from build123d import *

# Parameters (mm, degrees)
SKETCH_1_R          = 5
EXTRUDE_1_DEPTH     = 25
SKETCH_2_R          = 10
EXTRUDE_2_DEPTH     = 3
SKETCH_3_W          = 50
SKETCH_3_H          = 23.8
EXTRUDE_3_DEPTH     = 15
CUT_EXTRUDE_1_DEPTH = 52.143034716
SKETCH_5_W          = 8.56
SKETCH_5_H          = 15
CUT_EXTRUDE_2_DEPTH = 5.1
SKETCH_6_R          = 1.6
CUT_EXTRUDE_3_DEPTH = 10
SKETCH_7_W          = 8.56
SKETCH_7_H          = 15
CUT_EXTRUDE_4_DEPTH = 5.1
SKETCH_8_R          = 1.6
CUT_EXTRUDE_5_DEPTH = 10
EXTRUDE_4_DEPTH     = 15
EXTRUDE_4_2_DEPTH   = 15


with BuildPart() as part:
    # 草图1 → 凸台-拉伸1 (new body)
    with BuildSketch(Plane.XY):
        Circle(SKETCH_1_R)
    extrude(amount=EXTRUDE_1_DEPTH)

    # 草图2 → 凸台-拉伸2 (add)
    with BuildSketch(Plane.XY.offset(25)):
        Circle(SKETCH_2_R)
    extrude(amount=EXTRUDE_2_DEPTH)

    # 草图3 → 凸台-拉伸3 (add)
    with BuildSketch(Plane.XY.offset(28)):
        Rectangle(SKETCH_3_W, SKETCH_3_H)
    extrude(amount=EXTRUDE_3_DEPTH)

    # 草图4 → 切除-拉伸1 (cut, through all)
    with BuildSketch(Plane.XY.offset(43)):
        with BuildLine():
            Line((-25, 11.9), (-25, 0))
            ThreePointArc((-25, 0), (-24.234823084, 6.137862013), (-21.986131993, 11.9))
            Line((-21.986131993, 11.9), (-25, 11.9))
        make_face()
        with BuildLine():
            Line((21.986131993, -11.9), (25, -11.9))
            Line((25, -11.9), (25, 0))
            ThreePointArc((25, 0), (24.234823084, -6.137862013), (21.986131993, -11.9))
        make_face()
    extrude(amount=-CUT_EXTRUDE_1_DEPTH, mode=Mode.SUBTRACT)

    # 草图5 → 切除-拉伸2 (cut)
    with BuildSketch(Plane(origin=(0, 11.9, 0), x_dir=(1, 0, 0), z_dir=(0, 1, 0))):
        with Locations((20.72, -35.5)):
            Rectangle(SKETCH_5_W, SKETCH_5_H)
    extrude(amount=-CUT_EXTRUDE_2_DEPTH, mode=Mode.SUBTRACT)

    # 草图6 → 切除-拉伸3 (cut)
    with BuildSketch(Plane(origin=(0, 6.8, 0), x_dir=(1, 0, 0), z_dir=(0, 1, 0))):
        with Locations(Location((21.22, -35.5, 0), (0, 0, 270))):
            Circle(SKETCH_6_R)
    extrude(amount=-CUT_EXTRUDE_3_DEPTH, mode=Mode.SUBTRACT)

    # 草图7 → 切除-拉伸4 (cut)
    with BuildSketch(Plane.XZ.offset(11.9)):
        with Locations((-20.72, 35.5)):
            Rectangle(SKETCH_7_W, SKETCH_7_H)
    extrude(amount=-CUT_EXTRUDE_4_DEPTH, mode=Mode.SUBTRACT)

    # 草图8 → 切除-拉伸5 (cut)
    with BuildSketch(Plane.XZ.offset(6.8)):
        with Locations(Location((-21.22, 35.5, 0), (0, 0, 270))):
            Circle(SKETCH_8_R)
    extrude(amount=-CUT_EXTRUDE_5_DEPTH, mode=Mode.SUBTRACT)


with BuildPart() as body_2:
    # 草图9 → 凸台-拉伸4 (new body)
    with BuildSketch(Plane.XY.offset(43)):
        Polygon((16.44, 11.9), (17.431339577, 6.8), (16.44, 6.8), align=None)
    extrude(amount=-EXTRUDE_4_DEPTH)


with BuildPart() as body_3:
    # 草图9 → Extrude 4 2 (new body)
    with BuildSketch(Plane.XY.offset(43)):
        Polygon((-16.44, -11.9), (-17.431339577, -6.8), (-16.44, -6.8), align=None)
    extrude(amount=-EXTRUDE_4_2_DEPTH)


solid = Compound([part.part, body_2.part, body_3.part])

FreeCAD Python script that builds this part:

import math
import FreeCAD as App
import Part
import Sketcher
from FreeCAD import Vector
Q = App.Units.Quantity


def add_polygon(sketch, points):
    """Adds a closed chain of lines whose ends are joined by coincident constraints."""
    first, n = sketch.GeometryCount, len(points)
    for a, b in zip(points, points[1:] + points[:1]):
        sketch.addGeometry(Part.LineSegment(App.Vector(*a, 0), App.Vector(*b, 0)), False)
    for i in range(n):
        sketch.addConstraint(Sketcher.Constraint("Coincident", first + i, 2, first + (i + 1) % n, 1))

doc = App.newDocument("Part")
body = doc.addObject("PartDesign::Body", "Body")

# Sketch on XY plane
sketch1 = body.newObject("Sketcher::SketchObject", "Sketch")
sketch1.AttachmentSupport = (doc.getObject("XY_Plane"), [""])
sketch1.MapMode = "FlatFace"
sketch1.addGeometry(Part.Circle(Vector(0, 0, 0), Vector(0, 0, 1), 5), False)
sketch1.addConstraint([
    Sketcher.Constraint("Coincident", 0, 3, -1, 1),
    Sketcher.Constraint("Diameter", 0, Q("10 mm")),
])
pad1 = body.newObject("PartDesign::Pad", "Pad")
pad1.Profile = sketch1
pad1.Length = 25

# Sketch on XY plane
sketch2 = body.newObject("Sketcher::SketchObject", "Sketch001")
sketch2.AttachmentSupport = (doc.getObject("XY_Plane"), [""])
sketch2.MapMode = "FlatFace"
sketch2.AttachmentOffset = App.Placement(Vector(0, 0, 25), App.Rotation())
sketch2.addGeometry(Part.Circle(Vector(0, 0, 0), Vector(0, 0, 1), 10), False)
sketch2.addConstraint([
    Sketcher.Constraint("Coincident", 0, 3, -1, 1),
    Sketcher.Constraint("Diameter", 0, Q("20 mm")),
])
pad2 = body.newObject("PartDesign::Pad", "Pad001")
pad2.Profile = sketch2
pad2.Length = 3

# Sketch on XY plane
sketch3 = body.newObject("Sketcher::SketchObject", "Sketch002")
sketch3.AttachmentSupport = (doc.getObject("XY_Plane"), [""])
sketch3.MapMode = "FlatFace"
sketch3.AttachmentOffset = App.Placement(Vector(0, 0, 28), App.Rotation())
add_polygon(sketch3, [(-25, 12), (-25, -12), (25, -12), (25, 12)])  # lines 0-3
sketch3.addConstraint([
    Sketcher.Constraint("Vertical", 0),
    Sketcher.Constraint("Horizontal", 1),
    Sketcher.Constraint("Vertical", 2),
    Sketcher.Constraint("Horizontal", 3),
    Sketcher.Constraint("Symmetric", 0, 2, 2, 2, -1, 1),
    Sketcher.Constraint("DistanceX", 1, 1, 1, 2, Q("50 mm")),
    Sketcher.Constraint("DistanceY", 0, 2, 0, 1, Q("23.8 mm")),
])
pad3 = body.newObject("PartDesign::Pad", "Pad002")
pad3.Profile = sketch3
pad3.Length = 15

# Sketch on XY plane
sketch4 = body.newObject("Sketcher::SketchObject", "Sketch003")
sketch4.AttachmentSupport = (doc.getObject("XY_Plane"), [""])
sketch4.MapMode = "FlatFace"
sketch4.AttachmentOffset = App.Placement(Vector(0, 0, 43), App.Rotation())
sketch4.addGeometry([
    Part.LineSegment(Vector(-25, 11.9, 0), Vector(-25, 0, 0)),  # 0
    Part.ArcOfCircle(Part.Circle(Vector(0, 0, 0), Vector(0, 0, 1), 25), math.radians(152), math.radians(180)),  # 1
    Part.LineSegment(Vector(-22, 11.9, 0), Vector(-25, 11.9, 0)),  # 2
    Part.LineSegment(Vector(22, -11.9, 0), Vector(25, -11.9, 0)),  # 3
    Part.LineSegment(Vector(25, -11.9, 0), Vector(25, 0, 0)),  # 4
    Part.ArcOfCircle(Part.Circle(Vector(0, 0, 0), Vector(0, 0, 1), 25), math.radians(-28), math.radians(0)),  # 5
], False)
sketch4.addConstraint([
    Sketcher.Constraint("Tangent", 0, 2, 1, 2),
    Sketcher.Constraint("Coincident", 1, 1, 2, 1),
    Sketcher.Constraint("Coincident", 2, 2, 0, 1),
    Sketcher.Constraint("Coincident", 3, 2, 4, 1),
    Sketcher.Constraint("Tangent", 4, 2, 5, 2),
    Sketcher.Constraint("Coincident", 5, 1, 3, 1),
    Sketcher.Constraint("Vertical", 0),
    Sketcher.Constraint("Horizontal", 2),
    Sketcher.Constraint("Horizontal", 3),
    Sketcher.Constraint("Vertical", 4),
    Sketcher.Constraint("Coincident", 1, 3, -1, 1),
    Sketcher.Constraint("Coincident", 5, 3, -1, 1),
    Sketcher.Constraint("Equal", 1, 5),
    Sketcher.Constraint("Equal", 2, 3),
    Sketcher.Constraint("Radius", 1, Q("25 mm")),
    Sketcher.Constraint("DistanceY", 0, 2, 0, 1, Q("11.9 mm")),
])
pocket1 = body.newObject("PartDesign::Pocket", "Pocket")
pocket1.Profile = sketch4
pocket1.Type = "ThroughAll"

# Sketch on XZ plane
sketch5 = body.newObject("Sketcher::SketchObject", "Sketch004")
sketch5.AttachmentSupport = (doc.getObject("XZ_Plane"), [""])
sketch5.MapMode = "FlatFace"
sketch5.AttachmentOffset = App.Placement(Vector(0, 0, -11.9), App.Rotation())
add_polygon(sketch5, [(16, 28), (16, 43), (25, 43), (25, 28)])  # lines 0-3
sketch5.addConstraint([
    Sketcher.Constraint("Vertical", 0),
    Sketcher.Constraint("Horizontal", 1),
    Sketcher.Constraint("Vertical", 2),
    Sketcher.Constraint("Horizontal", 3),
    Sketcher.Constraint("DistanceY", 0, 1, 0, 2, Q("15 mm")),
    Sketcher.Constraint("DistanceY", -1, 1, 0, 2, Q("43 mm")),
    Sketcher.Constraint("DistanceX", -1, 1, 1, 2, Q("25 mm")),
    Sketcher.Constraint("DistanceX", 1, 1, 1, 2, Q("8.56 mm")),
])
pocket2 = body.newObject("PartDesign::Pocket", "Pocket001")
pocket2.Profile = sketch5
pocket2.Length = 5.1
pocket2.Reversed = True

# Sketch on XZ plane
sketch6 = body.newObject("Sketcher::SketchObject", "Sketch005")
sketch6.AttachmentSupport = (doc.getObject("XZ_Plane"), [""])
sketch6.MapMode = "FlatFace"
sketch6.AttachmentOffset = App.Placement(Vector(0, 0, -6.8), App.Rotation())
sketch6.addGeometry(Part.Circle(Vector(21.2, 35.5, 0), Vector(0, 0, 1), 1.6), False)
sketch6.addConstraint([
    Sketcher.Constraint("Diameter", 0, Q("3.2 mm")),
    Sketcher.Constraint("DistanceY", -1, 1, 0, 3, Q("35.5 mm")),
    Sketcher.Constraint("DistanceX", -1, 1, 0, 3, Q("21.22 mm")),
])
pocket3 = body.newObject("PartDesign::Pocket", "Pocket002")
pocket3.Profile = sketch6
pocket3.Length = 10
pocket3.Reversed = True

# Sketch on XZ plane
sketch7 = body.newObject("Sketcher::SketchObject", "Sketch006")
sketch7.AttachmentSupport = (doc.getObject("XZ_Plane"), [""])
sketch7.MapMode = "FlatFace"
sketch7.AttachmentOffset = App.Placement(Vector(0, 0, 11.9), App.Rotation())
add_polygon(sketch7, [(-25, 43), (-25, 28), (-16, 28), (-16, 43)])  # lines 0-3
sketch7.addConstraint([
    Sketcher.Constraint("Vertical", 0),
    Sketcher.Constraint("Horizontal", 1),
    Sketcher.Constraint("Vertical", 2),
    Sketcher.Constraint("Horizontal", 3),
    Sketcher.Constraint("DistanceY", 0, 2, 0, 1, Q("15 mm")),
    Sketcher.Constraint("DistanceX", 0, 2, -1, 1, Q("25 mm")),
    Sketcher.Constraint("DistanceY", -1, 1, 0, 2, Q("28 mm")),
    Sketcher.Constraint("DistanceX", 1, 1, 1, 2, Q("8.56 mm")),
])
pocket4 = body.newObject("PartDesign::Pocket", "Pocket003")
pocket4.Profile = sketch7
pocket4.Length = 5.1

# Sketch on XZ plane
sketch8 = body.newObject("Sketcher::SketchObject", "Sketch007")
sketch8.AttachmentSupport = (doc.getObject("XZ_Plane"), [""])
sketch8.MapMode = "FlatFace"
sketch8.AttachmentOffset = App.Placement(Vector(0, 0, 6.8), App.Rotation())
sketch8.addGeometry(Part.Circle(Vector(-21.2, 35.5, 0), Vector(0, 0, 1), 1.6), False)
sketch8.addConstraint([
    Sketcher.Constraint("Diameter", 0, Q("3.2 mm")),
    Sketcher.Constraint("DistanceY", -1, 1, 0, 3, Q("35.5 mm")),
    Sketcher.Constraint("DistanceX", 0, 3, -1, 1, Q("21.22 mm")),
])
pocket5 = body.newObject("PartDesign::Pocket", "Pocket004")
pocket5.Profile = sketch8
pocket5.Length = 10
body2 = doc.addObject("PartDesign::Body", "Body001")

# Sketch on XY plane
sketch9 = body2.newObject("Sketcher::SketchObject", "Sketch008")
sketch9.AttachmentSupport = (doc.getObject("XY_Plane001"), [""])
sketch9.MapMode = "FlatFace"
sketch9.AttachmentOffset = App.Placement(Vector(0, 0, 43), App.Rotation())
add_polygon(sketch9, [(17.4, 6.8), (16.4, 11.9), (16.4, 6.8)])  # lines 0-2
sketch9.addConstraint([
    Sketcher.Constraint("Vertical", 1),
    Sketcher.Constraint("Horizontal", 2),
    Sketcher.Constraint("Angle", 0, Q("101 deg")),
    Sketcher.Constraint("DistanceY", 1, 2, 1, 1, Q("5.1 mm")),
    Sketcher.Constraint("DistanceY", -1, 1, 0, 2, Q("11.9 mm")),
    Sketcher.Constraint("DistanceX", -1, 1, 0, 2, Q("16.44 mm")),
])
pad4 = body2.newObject("PartDesign::Pad", "Pad003")
pad4.Profile = sketch9
pad4.Length = 15
pad4.Reversed = True
body3 = doc.addObject("PartDesign::Body", "Body002")

# Sketch on XY plane
sketch10 = body3.newObject("Sketcher::SketchObject", "Sketch009")
sketch10.AttachmentSupport = (doc.getObject("XY_Plane002"), [""])
sketch10.MapMode = "FlatFace"
sketch10.AttachmentOffset = App.Placement(Vector(0, 0, 43), App.Rotation())
add_polygon(sketch10, [(-17.4, -6.8), (-16.4, -11.9), (-16.4, -6.8)])  # lines 0-2
sketch10.addConstraint([
    Sketcher.Constraint("Vertical", 1),
    Sketcher.Constraint("Horizontal", 2),
    Sketcher.Constraint("Angle", 0, Q("-79 deg")),
    Sketcher.Constraint("DistanceY", 1, 1, 1, 2, Q("5.1 mm")),
    Sketcher.Constraint("DistanceY", 0, 2, -1, 1, Q("11.9 mm")),
    Sketcher.Constraint("DistanceX", 0, 2, -1, 1, Q("16.44 mm")),
])
pad5 = body3.newObject("PartDesign::Pad", "Pad004")
pad5.Profile = sketch10
pad5.Length = 15
pad5.Reversed = True

doc.recompute()
